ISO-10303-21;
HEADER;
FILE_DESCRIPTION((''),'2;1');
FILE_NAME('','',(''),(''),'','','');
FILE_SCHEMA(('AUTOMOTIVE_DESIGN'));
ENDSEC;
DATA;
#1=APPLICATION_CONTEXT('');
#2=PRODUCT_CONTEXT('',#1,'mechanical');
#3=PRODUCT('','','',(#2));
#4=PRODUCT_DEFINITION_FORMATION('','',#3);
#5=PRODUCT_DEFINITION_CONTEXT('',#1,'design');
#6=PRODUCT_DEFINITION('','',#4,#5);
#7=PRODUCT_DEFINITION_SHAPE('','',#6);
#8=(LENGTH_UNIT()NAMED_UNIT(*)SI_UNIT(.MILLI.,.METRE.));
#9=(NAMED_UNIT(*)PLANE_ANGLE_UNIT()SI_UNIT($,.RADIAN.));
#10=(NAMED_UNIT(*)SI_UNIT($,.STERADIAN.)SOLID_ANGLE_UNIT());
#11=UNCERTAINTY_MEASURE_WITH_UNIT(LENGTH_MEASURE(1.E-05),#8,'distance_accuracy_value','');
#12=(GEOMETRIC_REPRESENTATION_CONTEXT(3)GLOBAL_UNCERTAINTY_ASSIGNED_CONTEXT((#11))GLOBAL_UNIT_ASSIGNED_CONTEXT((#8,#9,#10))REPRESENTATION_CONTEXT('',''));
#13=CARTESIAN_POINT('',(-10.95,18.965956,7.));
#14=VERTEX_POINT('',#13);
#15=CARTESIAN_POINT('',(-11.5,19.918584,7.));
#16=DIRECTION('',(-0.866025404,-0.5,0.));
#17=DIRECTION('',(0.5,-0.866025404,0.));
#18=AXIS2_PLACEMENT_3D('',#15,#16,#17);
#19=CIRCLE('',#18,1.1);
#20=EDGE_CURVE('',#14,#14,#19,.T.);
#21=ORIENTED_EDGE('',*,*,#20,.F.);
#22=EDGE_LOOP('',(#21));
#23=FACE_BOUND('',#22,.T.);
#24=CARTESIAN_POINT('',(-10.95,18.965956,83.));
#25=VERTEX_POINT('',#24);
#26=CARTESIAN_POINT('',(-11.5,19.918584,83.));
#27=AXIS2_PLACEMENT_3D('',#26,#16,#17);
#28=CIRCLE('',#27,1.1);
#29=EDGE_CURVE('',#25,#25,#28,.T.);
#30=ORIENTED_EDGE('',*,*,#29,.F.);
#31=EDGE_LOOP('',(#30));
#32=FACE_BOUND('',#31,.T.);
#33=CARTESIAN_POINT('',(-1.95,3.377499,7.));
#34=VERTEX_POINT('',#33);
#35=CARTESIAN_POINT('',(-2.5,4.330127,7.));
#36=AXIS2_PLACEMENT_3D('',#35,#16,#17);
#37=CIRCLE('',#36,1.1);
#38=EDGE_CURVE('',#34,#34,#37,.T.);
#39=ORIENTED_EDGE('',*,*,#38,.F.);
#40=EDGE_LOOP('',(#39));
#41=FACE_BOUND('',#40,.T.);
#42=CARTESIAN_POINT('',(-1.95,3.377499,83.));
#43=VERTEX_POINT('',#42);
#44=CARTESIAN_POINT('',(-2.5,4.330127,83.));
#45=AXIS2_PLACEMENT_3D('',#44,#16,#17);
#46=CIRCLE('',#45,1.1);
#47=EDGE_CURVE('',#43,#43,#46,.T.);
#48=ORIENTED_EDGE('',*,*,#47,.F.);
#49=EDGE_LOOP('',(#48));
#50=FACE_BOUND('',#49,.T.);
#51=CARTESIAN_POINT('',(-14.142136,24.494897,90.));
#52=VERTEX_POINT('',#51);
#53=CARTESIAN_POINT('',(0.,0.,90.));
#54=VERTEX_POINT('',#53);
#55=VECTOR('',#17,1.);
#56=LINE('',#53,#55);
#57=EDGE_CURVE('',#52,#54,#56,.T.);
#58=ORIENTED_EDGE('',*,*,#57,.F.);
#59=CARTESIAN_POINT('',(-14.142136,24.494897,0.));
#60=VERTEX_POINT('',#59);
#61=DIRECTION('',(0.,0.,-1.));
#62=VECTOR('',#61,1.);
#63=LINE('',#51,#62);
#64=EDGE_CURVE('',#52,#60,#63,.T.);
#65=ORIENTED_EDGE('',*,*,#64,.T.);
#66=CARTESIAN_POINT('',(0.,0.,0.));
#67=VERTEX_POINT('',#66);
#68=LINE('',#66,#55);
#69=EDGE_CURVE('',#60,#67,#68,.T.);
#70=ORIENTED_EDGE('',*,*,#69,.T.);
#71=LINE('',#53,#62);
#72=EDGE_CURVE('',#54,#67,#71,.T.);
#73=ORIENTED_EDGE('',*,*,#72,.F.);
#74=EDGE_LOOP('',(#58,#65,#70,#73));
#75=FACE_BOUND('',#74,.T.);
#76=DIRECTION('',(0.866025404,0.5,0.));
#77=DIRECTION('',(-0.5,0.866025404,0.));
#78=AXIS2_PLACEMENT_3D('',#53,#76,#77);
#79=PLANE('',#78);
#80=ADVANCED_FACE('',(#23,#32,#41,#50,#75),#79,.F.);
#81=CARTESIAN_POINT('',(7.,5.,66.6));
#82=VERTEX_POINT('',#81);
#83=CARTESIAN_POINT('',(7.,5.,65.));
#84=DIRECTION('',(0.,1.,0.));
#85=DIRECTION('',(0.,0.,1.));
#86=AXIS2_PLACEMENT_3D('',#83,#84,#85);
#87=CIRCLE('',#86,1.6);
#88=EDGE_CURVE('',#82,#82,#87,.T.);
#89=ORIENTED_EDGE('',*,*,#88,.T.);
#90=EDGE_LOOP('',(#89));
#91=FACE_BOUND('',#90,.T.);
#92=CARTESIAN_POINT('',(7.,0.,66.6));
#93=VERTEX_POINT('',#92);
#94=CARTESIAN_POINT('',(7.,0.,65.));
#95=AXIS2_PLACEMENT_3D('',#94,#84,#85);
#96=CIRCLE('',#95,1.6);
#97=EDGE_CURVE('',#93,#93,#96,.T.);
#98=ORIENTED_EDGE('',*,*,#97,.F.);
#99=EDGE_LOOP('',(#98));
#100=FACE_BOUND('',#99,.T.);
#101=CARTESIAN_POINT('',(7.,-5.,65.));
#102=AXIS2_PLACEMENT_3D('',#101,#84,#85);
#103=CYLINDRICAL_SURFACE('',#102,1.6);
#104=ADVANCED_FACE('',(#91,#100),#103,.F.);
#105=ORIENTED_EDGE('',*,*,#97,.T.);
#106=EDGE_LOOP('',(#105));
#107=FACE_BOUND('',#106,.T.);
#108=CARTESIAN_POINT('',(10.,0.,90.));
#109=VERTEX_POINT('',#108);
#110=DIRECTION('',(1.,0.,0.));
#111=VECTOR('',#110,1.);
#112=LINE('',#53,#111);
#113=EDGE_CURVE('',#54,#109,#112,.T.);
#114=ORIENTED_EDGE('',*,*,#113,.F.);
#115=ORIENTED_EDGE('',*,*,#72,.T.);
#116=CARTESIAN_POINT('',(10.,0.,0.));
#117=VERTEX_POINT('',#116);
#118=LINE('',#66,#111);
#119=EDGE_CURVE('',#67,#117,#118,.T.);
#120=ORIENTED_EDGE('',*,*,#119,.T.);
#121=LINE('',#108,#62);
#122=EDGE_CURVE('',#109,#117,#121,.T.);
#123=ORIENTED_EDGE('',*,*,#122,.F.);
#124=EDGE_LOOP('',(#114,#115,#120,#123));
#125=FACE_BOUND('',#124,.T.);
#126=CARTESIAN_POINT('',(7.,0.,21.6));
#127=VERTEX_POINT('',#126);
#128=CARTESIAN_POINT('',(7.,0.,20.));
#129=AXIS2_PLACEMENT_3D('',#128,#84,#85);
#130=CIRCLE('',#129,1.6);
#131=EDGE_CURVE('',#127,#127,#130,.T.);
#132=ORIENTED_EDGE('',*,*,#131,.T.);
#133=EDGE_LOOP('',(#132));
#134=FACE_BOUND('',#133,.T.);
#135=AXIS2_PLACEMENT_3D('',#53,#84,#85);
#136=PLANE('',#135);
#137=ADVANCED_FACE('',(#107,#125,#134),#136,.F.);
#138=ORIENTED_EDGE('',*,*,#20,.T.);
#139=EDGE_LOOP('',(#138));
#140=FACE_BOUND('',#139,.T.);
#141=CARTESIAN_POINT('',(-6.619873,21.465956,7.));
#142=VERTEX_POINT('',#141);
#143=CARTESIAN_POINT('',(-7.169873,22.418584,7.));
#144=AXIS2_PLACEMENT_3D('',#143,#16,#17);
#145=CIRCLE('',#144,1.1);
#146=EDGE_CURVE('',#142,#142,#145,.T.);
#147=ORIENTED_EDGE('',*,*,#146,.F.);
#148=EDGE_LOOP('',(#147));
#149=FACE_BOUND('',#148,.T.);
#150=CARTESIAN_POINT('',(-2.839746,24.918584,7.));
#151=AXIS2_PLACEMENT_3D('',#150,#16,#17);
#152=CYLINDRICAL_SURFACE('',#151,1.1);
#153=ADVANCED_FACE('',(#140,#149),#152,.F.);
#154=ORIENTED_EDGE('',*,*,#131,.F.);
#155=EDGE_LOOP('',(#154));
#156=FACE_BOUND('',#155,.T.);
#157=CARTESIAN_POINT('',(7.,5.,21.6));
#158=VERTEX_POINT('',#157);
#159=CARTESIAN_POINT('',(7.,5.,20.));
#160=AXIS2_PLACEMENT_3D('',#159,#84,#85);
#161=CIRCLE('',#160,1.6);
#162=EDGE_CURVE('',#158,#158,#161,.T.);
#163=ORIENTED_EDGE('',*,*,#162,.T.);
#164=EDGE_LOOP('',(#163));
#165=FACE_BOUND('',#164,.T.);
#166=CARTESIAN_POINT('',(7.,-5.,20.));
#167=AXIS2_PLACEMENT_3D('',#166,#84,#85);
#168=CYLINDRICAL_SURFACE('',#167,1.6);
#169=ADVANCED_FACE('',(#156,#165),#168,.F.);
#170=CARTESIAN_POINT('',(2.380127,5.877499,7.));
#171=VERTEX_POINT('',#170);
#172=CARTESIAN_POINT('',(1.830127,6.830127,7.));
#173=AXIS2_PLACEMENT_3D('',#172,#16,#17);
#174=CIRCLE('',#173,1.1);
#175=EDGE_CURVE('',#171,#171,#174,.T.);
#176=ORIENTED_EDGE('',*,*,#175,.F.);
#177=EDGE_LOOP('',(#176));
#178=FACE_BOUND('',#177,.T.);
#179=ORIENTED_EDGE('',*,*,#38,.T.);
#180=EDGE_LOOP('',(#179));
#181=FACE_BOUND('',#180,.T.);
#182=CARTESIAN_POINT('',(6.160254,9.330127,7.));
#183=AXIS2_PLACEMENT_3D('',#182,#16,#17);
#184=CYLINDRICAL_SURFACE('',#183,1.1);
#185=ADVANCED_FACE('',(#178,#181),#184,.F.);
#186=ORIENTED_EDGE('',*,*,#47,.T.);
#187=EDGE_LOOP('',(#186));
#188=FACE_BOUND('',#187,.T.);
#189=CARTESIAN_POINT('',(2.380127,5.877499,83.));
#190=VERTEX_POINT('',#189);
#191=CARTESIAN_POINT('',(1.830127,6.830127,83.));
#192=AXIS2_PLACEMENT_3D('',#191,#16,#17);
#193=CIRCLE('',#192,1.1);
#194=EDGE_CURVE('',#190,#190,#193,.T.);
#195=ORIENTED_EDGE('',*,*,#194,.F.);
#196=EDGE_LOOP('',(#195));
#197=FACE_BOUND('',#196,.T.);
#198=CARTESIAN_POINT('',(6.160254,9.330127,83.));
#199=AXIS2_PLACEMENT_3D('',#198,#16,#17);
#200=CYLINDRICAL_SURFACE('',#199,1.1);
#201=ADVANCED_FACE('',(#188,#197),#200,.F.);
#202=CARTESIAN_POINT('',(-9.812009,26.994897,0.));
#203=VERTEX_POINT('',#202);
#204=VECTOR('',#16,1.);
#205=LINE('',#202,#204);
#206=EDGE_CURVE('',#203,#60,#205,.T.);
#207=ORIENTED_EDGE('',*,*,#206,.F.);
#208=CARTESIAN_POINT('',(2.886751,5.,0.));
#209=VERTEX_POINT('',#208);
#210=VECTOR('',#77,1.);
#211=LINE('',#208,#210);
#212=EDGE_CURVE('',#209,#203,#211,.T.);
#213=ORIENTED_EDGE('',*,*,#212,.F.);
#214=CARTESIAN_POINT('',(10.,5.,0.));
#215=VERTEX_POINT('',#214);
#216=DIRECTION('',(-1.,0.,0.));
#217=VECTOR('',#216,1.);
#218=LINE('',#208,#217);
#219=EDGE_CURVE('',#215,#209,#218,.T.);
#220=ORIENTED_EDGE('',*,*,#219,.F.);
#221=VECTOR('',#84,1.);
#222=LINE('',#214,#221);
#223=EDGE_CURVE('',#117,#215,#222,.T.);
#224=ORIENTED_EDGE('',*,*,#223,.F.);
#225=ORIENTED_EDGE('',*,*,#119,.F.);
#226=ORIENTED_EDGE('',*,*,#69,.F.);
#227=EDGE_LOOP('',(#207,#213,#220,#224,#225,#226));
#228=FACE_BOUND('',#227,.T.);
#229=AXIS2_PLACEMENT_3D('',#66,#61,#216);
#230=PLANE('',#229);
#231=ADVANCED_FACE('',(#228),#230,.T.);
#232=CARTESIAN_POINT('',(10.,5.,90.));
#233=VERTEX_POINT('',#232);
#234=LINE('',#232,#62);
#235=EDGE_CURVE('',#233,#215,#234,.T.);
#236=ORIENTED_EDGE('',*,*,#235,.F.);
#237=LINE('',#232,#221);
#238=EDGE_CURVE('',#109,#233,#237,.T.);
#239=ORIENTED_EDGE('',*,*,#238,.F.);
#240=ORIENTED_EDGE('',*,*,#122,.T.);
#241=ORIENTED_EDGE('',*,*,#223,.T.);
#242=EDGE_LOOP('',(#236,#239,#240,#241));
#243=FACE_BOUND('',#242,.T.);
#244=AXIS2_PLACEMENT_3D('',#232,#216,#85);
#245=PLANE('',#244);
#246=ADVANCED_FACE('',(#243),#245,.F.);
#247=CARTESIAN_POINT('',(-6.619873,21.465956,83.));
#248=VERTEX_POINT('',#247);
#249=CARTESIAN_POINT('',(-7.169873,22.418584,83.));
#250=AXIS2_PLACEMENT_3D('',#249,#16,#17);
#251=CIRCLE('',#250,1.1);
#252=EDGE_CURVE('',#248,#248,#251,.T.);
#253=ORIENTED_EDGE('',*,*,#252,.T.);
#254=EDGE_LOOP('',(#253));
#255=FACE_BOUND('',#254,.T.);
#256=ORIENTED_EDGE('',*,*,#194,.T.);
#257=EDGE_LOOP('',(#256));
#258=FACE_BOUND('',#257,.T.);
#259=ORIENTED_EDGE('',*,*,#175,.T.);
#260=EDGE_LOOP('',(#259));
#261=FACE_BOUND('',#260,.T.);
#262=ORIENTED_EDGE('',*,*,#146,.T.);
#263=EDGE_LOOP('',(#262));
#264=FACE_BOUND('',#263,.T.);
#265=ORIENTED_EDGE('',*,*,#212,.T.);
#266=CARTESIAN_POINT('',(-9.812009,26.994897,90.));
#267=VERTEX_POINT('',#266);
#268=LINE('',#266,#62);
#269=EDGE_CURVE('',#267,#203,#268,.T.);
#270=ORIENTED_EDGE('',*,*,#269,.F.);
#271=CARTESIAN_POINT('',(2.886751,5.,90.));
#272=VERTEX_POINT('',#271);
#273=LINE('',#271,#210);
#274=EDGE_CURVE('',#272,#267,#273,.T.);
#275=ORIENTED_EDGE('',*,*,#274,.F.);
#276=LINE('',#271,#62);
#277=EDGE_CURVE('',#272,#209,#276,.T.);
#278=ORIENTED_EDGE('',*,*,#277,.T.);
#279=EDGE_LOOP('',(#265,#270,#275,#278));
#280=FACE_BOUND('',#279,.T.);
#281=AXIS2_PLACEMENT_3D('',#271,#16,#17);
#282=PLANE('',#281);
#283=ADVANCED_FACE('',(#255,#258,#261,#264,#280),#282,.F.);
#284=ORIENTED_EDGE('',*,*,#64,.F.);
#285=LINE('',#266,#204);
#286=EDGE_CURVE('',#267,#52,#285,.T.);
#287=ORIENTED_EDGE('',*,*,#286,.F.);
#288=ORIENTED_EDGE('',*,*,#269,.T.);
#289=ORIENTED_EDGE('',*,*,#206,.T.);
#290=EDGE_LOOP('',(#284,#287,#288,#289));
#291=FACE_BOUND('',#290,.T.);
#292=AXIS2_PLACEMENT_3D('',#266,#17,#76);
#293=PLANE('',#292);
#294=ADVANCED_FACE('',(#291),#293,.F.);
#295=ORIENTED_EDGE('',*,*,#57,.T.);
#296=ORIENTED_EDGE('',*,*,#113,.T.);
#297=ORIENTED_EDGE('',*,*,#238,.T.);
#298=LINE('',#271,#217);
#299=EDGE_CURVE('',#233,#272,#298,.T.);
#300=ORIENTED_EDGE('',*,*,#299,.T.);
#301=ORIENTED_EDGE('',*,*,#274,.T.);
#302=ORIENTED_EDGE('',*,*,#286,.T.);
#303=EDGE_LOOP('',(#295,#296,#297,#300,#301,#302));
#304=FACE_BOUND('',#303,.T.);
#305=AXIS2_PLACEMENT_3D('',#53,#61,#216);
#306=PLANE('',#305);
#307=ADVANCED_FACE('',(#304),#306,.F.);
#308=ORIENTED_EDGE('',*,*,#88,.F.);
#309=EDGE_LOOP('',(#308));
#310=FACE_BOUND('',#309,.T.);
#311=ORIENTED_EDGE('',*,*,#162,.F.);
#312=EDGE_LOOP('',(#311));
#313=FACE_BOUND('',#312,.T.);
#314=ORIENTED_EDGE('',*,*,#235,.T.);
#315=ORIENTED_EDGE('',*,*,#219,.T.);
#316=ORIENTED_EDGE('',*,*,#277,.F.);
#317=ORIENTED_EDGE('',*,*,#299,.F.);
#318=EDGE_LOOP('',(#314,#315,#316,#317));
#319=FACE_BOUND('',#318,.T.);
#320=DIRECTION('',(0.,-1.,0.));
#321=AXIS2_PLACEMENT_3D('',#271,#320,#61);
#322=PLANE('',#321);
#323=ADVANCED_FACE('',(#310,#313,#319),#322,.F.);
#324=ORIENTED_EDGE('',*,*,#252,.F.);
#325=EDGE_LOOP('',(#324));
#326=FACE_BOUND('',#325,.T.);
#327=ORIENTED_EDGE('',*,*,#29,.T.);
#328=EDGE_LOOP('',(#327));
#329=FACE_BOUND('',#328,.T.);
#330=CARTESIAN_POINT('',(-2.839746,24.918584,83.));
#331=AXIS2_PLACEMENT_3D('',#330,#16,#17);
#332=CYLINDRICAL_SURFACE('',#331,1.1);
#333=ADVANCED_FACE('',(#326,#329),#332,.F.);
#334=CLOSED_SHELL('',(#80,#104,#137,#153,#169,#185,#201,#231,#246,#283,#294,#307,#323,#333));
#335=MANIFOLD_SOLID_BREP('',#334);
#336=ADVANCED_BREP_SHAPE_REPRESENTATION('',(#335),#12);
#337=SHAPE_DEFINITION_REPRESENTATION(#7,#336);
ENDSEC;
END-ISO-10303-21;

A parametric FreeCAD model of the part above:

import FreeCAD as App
import Part
import Sketcher

V = App.Vector
Q = App.Units.Quantity


def add_polygon(sketch, points):
    """Adds a closed chain of lines whose ends are joined by coincident constraints."""
    first, n = sketch.GeometryCount, len(points)
    for a, b in zip(points, points[1:] + points[:1]):
        sketch.addGeometry(Part.LineSegment(App.Vector(*a, 0), App.Vector(*b, 0)), False)
    for i in range(n):
        sketch.addConstraint(Sketcher.Constraint("Coincident", first + i, 2, first + (i + 1) % n, 1))

doc = App.newDocument("Part")
body = doc.addObject("PartDesign::Body", "Body")

# Sketch on XY plane
sketch1 = body.newObject("Sketcher::SketchObject", "Sketch")
sketch1.AttachmentSupport = (doc.getObject("XY_Plane"), [""])
sketch1.MapMode = "FlatFace"
add_polygon(sketch1, [(-14.142136, 24.494897), (0, 0), (10, 0), (10, 5), (2.886751, 5), (-9.812009, 26.994897)])  # lines 0-5
sketch1.addConstraint([
    Sketcher.Constraint("Horizontal", 1),
    Sketcher.Constraint("Vertical", 2),
    Sketcher.Constraint("Horizontal", 3),
    Sketcher.Constraint("Coincident", 0, 2, -1, 1),
    Sketcher.Constraint("Parallel", 0, 4),
    Sketcher.Constraint("Perpendicular", 4, 5),
    Sketcher.Constraint("DistanceX", 1, 1, 1, 2, Q("10 mm")),
    Sketcher.Constraint("DistanceY", 2, 1, 2, 2, Q("5 mm")),
    Sketcher.Constraint("Angle", 0, Q("-60 deg")),
    Sketcher.Constraint("Distance", 5, Q("5 mm")),
    Sketcher.Constraint("Distance", 0, Q("28.284271 mm")),
])
pad1 = body.newObject("PartDesign::Pad", "Pad")
pad1.Profile = sketch1
pad1.Length = 90

# Sketch on XZ plane
sketch2 = body.newObject("Sketcher::SketchObject", "Sketch001")
sketch2.AttachmentSupport = (doc.getObject("XZ_Plane"), [""])
sketch2.MapMode = "FlatFace"
sketch2.AttachmentOffset = App.Placement(V(0, 0, -5), App.Rotation())
sketch2.addGeometry([
    Part.Circle(V(7, 20, 0), V(0, 0, 1), 1.6),
    Part.Circle(V(7, 65, 0), V(0, 0, 1), 1.6),
], False)
sketch2.addConstraint([
    Sketcher.Constraint("Equal", 0, 1),
    Sketcher.Constraint("Vertical", 0, 3, 1, 3),
    Sketcher.Constraint("Diameter", 0, Q("3.2 mm")),
    Sketcher.Constraint("DistanceX", -1, 1, 0, 3, Q("7 mm")),
    Sketcher.Constraint("DistanceY", -1, 1, 0, 3, Q("20 mm")),
    Sketcher.Constraint("DistanceY", -1, 1, 1, 3, Q("65 mm")),
])
pocket1 = body.newObject("PartDesign::Pocket", "Pocket")
pocket1.Profile = sketch2
pocket1.Length = 10
pocket1.Reversed = True

# Sketch on an angled plane
sketch3 = body.newObject("Sketcher::SketchObject", "Sketch002")
sketch3.Placement = App.Placement(V(0, 0, 0), App.Rotation(V(0, 0, 1), V(-0.5, 0.866025404, 0), V(-0.866025404, -0.5, 0), "ZXY"))
sketch3.addGeometry([
    Part.Circle(V(7, 23, 0), V(0, 0, 1), 1.1),
    Part.Circle(V(83, 23, 0), V(0, 0, 1), 1.1),
    Part.Circle(V(83, 5, 0), V(0, 0, 1), 1.1),
    Part.Circle(V(7, 5, 0), V(0, 0, 1), 1.1),
], False)
sketch3.addConstraint([
    Sketcher.Constraint("Equal", 0, 1),
    Sketcher.Constraint("Equal", 1, 2),
    Sketcher.Constraint("Equal", 2, 3),
    Sketcher.Constraint("Horizontal", 0, 3, 1, 3),
    Sketcher.Constraint("Horizontal", 2, 3, 3, 3),
    Sketcher.Constraint("Vertical", 1, 3, 2, 3),
    Sketcher.Constraint("Vertical", 0, 3, 3, 3),
    Sketcher.Constraint("Diameter", 0, Q("2.2 mm")),
    Sketcher.Constraint("DistanceX", -1, 1, 0, 3, Q("7 mm")),
    Sketcher.Constraint("DistanceY", -1, 1, 0, 3, Q("23 mm")),
    Sketcher.Constraint("DistanceX", -1, 1, 1, 3, Q("83 mm")),
    Sketcher.Constraint("DistanceY", -1, 1, 2, 3, Q("5 mm")),
])
pocket2 = body.newObject("PartDesign::Pocket", "Pocket001")
pocket2.Profile = sketch3
pocket2.Length = 10

doc.recompute()
